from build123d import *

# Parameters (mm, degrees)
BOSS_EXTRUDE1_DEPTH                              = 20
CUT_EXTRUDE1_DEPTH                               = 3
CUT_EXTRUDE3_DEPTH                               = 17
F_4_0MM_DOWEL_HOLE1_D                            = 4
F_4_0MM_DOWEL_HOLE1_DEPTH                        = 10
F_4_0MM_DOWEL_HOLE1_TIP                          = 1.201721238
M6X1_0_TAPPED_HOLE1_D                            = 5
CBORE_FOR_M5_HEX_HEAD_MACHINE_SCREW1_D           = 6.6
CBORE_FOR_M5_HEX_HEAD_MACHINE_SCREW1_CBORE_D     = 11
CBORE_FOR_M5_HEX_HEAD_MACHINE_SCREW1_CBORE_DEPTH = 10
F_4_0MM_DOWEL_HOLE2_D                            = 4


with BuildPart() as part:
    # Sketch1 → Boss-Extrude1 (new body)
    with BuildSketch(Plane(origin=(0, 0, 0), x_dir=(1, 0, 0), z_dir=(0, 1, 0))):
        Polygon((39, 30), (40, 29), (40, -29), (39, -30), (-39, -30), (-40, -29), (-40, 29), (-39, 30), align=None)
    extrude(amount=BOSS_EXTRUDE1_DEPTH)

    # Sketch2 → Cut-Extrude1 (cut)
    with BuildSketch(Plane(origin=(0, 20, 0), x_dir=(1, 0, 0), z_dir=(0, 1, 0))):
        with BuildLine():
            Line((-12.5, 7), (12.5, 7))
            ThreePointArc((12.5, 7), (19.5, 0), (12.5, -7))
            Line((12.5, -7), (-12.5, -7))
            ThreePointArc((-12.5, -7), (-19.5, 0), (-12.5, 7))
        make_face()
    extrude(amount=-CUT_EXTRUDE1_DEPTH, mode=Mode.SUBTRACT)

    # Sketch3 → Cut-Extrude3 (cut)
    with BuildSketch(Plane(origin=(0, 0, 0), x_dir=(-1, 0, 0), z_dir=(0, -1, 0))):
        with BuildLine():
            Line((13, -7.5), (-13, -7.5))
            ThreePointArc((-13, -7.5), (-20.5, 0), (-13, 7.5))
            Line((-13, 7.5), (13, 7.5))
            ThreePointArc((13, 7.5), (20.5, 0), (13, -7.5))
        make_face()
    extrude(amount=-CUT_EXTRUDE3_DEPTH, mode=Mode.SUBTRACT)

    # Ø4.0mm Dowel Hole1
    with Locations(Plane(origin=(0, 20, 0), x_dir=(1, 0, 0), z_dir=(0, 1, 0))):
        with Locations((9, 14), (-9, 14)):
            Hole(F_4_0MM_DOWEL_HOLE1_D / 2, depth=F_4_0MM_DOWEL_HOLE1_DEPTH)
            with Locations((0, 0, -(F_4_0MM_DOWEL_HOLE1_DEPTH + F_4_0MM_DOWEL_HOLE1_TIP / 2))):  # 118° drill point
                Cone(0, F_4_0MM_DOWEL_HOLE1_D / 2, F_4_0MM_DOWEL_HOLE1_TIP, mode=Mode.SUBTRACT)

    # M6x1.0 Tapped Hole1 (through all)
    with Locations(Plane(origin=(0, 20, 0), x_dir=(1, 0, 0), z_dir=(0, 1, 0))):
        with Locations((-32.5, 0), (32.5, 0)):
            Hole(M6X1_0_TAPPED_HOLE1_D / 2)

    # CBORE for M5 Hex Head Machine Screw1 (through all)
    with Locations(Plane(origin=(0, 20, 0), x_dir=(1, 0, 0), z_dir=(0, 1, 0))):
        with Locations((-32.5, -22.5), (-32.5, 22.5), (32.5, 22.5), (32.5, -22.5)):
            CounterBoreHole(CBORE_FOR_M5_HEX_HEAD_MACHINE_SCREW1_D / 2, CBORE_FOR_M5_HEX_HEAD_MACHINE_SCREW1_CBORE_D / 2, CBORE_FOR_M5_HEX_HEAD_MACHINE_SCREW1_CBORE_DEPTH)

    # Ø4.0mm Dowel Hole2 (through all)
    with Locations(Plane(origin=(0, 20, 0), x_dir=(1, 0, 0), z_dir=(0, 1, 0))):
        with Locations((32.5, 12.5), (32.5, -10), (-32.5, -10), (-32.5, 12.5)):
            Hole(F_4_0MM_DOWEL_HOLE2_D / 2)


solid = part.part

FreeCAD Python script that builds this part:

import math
import FreeCAD as App
import Part
import Sketcher
from FreeCAD import Vector

doc = App.newDocument("Part")
body = doc.addObject("PartDesign::Body", "Body")

# Sketch on XZ plane
sketch1 = body.newObject("Sketcher::SketchObject", "Sketch")
sketch1.AttachmentSupport = (doc.getObject("XZ_Plane"), [""])
sketch1.MapMode = "FlatFace"
sketch1.addGeometry([
    Part.LineSegment(Vector(40, -29, 0), Vector(39, -30, 0)),  # 0
    Part.LineSegment(Vector(39, -30, 0), Vector(-39, -30, 0)),  # 1
    Part.LineSegment(Vector(-39, -30, 0), Vector(-40, -29, 0)),  # 2
    Part.LineSegment(Vector(-40, -29, 0), Vector(-40, 29, 0)),  # 3
    Part.LineSegment(Vector(-40, 29, 0), Vector(-39, 30, 0)),  # 4
    Part.LineSegment(Vector(-39, 30, 0), Vector(39, 30, 0)),  # 5
    Part.LineSegment(Vector(39, 30, 0), Vector(40, 29, 0)),  # 6
    Part.LineSegment(Vector(40, 29, 0), Vector(40, -29, 0)),  # 7
], False)
sketch1.addConstraint([
    Sketcher.Constraint("Coincident", 0, 2, 1, 1),
    Sketcher.Constraint("Coincident", 1, 2, 2, 1),
    Sketcher.Constraint("Coincident", 2, 2, 3, 1),
    Sketcher.Constraint("Coincident", 3, 2, 4, 1),
    Sketcher.Constraint("Coincident", 4, 2, 5, 1),
    Sketcher.Constraint("Coincident", 5, 2, 6, 1),
    Sketcher.Constraint("Coincident", 6, 2, 7, 1),
    Sketcher.Constraint("Coincident", 7, 2, 0, 1),
    Sketcher.Constraint("Horizontal", 1),
    Sketcher.Constraint("Vertical", 3),
    Sketcher.Constraint("Horizontal", 5),
    Sketcher.Constraint("Vertical", 7),
    Sketcher.Constraint("Symmetric", 0, 2, 4, 2, -1, 1),
    Sketcher.Constraint("Symmetric", 2, 2, 6, 2, -1, 1),
    Sketcher.Constraint("Perpendicular", 0, 2),
    Sketcher.Constraint("Perpendicular", 2, 4),
    Sketcher.Constraint("Perpendicular", 4, 6),
    Sketcher.Constraint("Horizontal", 3, 2, 6, 2),
    Sketcher.Constraint("Vertical", 1, 2, 4, 2),
    Sketcher.Constraint("DistanceX", 1, 2, 1, 1, 78.0),
    Sketcher.Constraint("DistanceY", 3, 1, 3, 2, 58.0),
    Sketcher.Constraint("DistanceY", 0, 2, -1, 1, 30.0),
])
pad1 = body.newObject("PartDesign::Pad", "Pad")
pad1.Profile = sketch1
pad1.Length = 20
pad1.Reversed = True

# Sketch on XZ plane
sketch2 = body.newObject("Sketcher::SketchObject", "Sketch001")
sketch2.AttachmentSupport = (doc.getObject("XZ_Plane"), [""])
sketch2.MapMode = "FlatFace"
sketch2.AttachmentOffset = App.Placement(Vector(0, 0, -20), App.Rotation())
sketch2.addGeometry([
    Part.LineSegment(Vector(12.5, -7, 0), Vector(-12.5, -7, 0)),
    Part.ArcOfCircle(Part.Circle(Vector(-12.5, 0, 0), Vector(0, 0, 1), 7), math.radians(90), math.radians(270)),
    Part.LineSegment(Vector(-12.5, 7, 0), Vector(12.5, 7, 0)),
    Part.ArcOfCircle(Part.Circle(Vector(12.5, 0, 0), Vector(0, 0, 1), 7), math.radians(-90), math.radians(90)),
], False)
sketch2.addConstraint([
    Sketcher.Constraint("Tangent", 0, 2, 1, 2),
    Sketcher.Constraint("Tangent", 1, 1, 2, 1),
    Sketcher.Constraint("Tangent", 2, 2, 3, 2),
    Sketcher.Constraint("Tangent", 3, 1, 0, 1),
    Sketcher.Constraint("Horizontal", 0),
    Sketcher.Constraint("Horizontal", 2),
    Sketcher.Constraint("Symmetric", 1, 3, 3, 3, -1, 1),
    Sketcher.Constraint("Radius", 1, 7.0),
    Sketcher.Constraint("DistanceX", 0, 2, 0, 1, 25.0),
])
pocket1 = body.newObject("PartDesign::Pocket", "Pocket")
pocket1.Profile = sketch2
pocket1.Length = 3
pocket1.Reversed = True

# Sketch on XZ plane
sketch3 = body.newObject("Sketcher::SketchObject", "Sketch002")
sketch3.AttachmentSupport = (doc.getObject("XZ_Plane"), [""])
sketch3.MapMode = "FlatFace"
sketch3.addGeometry([
    Part.LineSegment(Vector(13, 7.5, 0), Vector(-13, 7.5, 0)),
    Part.ArcOfCircle(Part.Circle(Vector(-13, 0, 0), Vector(0, 0, 1), 7.5), math.radians(90), math.radians(270)),
    Part.LineSegment(Vector(-13, -7.5, 0), Vector(13, -7.5, 0)),
    Part.ArcOfCircle(Part.Circle(Vector(13, 0, 0), Vector(0, 0, 1), 7.5), math.radians(-90), math.radians(90)),
], False)
sketch3.addConstraint([
    Sketcher.Constraint("Tangent", 0, 2, 1, 1),
    Sketcher.Constraint("Tangent", 1, 2, 2, 1),
    Sketcher.Constraint("Tangent", 2, 2, 3, 1),
    Sketcher.Constraint("Tangent", 3, 2, 0, 1),
    Sketcher.Constraint("Horizontal", 0),
    Sketcher.Constraint("Horizontal", 2),
    Sketcher.Constraint("Symmetric", 1, 3, 3, 3, -1, 1),
    Sketcher.Constraint("Radius", 1, 7.5),
    Sketcher.Constraint("DistanceX", 0, 2, 0, 1, 26.0),
])
pocket2 = body.newObject("PartDesign::Pocket", "Pocket001")
pocket2.Profile = sketch3
pocket2.Length = 17

# Sketch on XZ plane
sketch4 = body.newObject("Sketcher::SketchObject", "Sketch003")
sketch4.AttachmentSupport = (doc.getObject("XZ_Plane"), [""])
sketch4.MapMode = "FlatFace"
sketch4.AttachmentOffset = App.Placement(Vector(0, 0, -20), App.Rotation())
sketch4.addGeometry([
    Part.Circle(Vector(9, -14, 0), Vector(0, 0, 1), 2),
    Part.Circle(Vector(-9, -14, 0), Vector(0, 0, 1), 2),
], False)
sketch4.addConstraint([
    Sketcher.Constraint("Equal", 0, 1),
    Sketcher.Constraint("Symmetric", 0, 3, 1, 3, -2),
    Sketcher.Constraint("Diameter", 0, 4.0),
    Sketcher.Constraint("DistanceX", -1, 1, 0, 3, 9.0),
    Sketcher.Constraint("DistanceY", 0, 3, -1, 1, 14.0),
])
doc.recompute()
hole = body.newObject("PartDesign::Hole", "Hole")
hole.Profile = sketch4
hole.ThreadType = "None"
hole.Diameter = 4
hole.DepthType = "Dimension"
hole.Depth = 10
hole.DrillPoint = "Angled"
hole.DrillPointAngle = 118
hole.Reversed = True

# Sketch on XZ plane
sketch5 = body.newObject("Sketcher::SketchObject", "Sketch004")
sketch5.AttachmentSupport = (doc.getObject("XZ_Plane"), [""])
sketch5.MapMode = "FlatFace"
sketch5.AttachmentOffset = App.Placement(Vector(0, 0, -20), App.Rotation())
sketch5.addGeometry([
    Part.Circle(Vector(-32.5, 0, 0), Vector(0, 0, 1), 2.5),
    Part.Circle(Vector(32.5, 0, 0), Vector(0, 0, 1), 2.5),
], False)
sketch5.addConstraint([
    Sketcher.Constraint("Equal", 0, 1),
    Sketcher.Constraint("Symmetric", 0, 3, 1, 3, -1, 1),
    Sketcher.Constraint("PointOnObject", 0, 3, -1),
    Sketcher.Constraint("Diameter", 0, 5.0),
    Sketcher.Constraint("DistanceX", 0, 3, 1, 3, 65.0),
])
doc.recompute()
hole2 = body.newObject("PartDesign::Hole", "Hole001")
hole2.Profile = sketch5
hole2.ThreadType = "None"
hole2.Diameter = 5
hole2.DepthType = "ThroughAll"
hole2.Reversed = True

# Sketch on XZ plane
sketch6 = body.newObject("Sketcher::SketchObject", "Sketch005")
sketch6.AttachmentSupport = (doc.getObject("XZ_Plane"), [""])
sketch6.MapMode = "FlatFace"
sketch6.AttachmentOffset = App.Placement(Vector(0, 0, -20), App.Rotation())
sketch6.addGeometry([
    Part.Circle(Vector(-32.5, 22.5, 0), Vector(0, 0, 1), 3.3),
    Part.Circle(Vector(-32.5, -22.5, 0), Vector(0, 0, 1), 3.3),
    Part.Circle(Vector(32.5, -22.5, 0), Vector(0, 0, 1), 3.3),
    Part.Circle(Vector(32.5, 22.5, 0), Vector(0, 0, 1), 3.3),
], False)
sketch6.addConstraint([
    Sketcher.Constraint("Equal", 0, 1),
    Sketcher.Constraint("Equal", 1, 2),
    Sketcher.Constraint("Equal", 2, 3),
    Sketcher.Constraint("Symmetric", 0, 3, 2, 3, -1, 1),
    Sketcher.Constraint("Symmetric", 1, 3, 3, 3, -1, 1),
    Sketcher.Constraint("Symmetric", 1, 3, 2, 3, -2),
    Sketcher.Constraint("Diameter", 0, 6.6),
    Sketcher.Constraint("DistanceY", 1, 3, 0, 3, 45.0),
    Sketcher.Constraint("DistanceX", 1, 3, 2, 3, 65.0),
])
doc.recompute()
hole3 = body.newObject("PartDesign::Hole", "Hole002")
hole3.Profile = sketch6
hole3.ThreadType = "None"
hole3.Diameter = 6.6
hole3.DepthType = "ThroughAll"
hole3.HoleCutType = "Counterbore"
hole3.HoleCutDiameter = 11
hole3.HoleCutDepth = 10
hole3.Reversed = True

# Sketch on XZ plane
sketch7 = body.newObject("Sketcher::SketchObject", "Sketch006")
sketch7.AttachmentSupport = (doc.getObject("XZ_Plane"), [""])
sketch7.MapMode = "FlatFace"
sketch7.AttachmentOffset = App.Placement(Vector(0, 0, -20), App.Rotation())
sketch7.addGeometry([
    Part.Circle(Vector(32.5, -12.5, 0), Vector(0, 0, 1), 2),
    Part.Circle(Vector(32.5, 10, 0), Vector(0, 0, 1), 2),
    Part.Circle(Vector(-32.5, 10, 0), Vector(0, 0, 1), 2),
    Part.Circle(Vector(-32.5, -12.5, 0), Vector(0, 0, 1), 2),
], False)
sketch7.addConstraint([
    Sketcher.Constraint("Equal", 0, 1),
    Sketcher.Constraint("Equal", 1, 2),
    Sketcher.Constraint("Equal", 2, 3),
    Sketcher.Constraint("Symmetric", 1, 3, 2, 3, -2),
    Sketcher.Constraint("Symmetric", 0, 3, 3, 3, -2),
    Sketcher.Constraint("Vertical", 0, 3, 1, 3),
    Sketcher.Constraint("Diameter", 0, 4.0),
    Sketcher.Constraint("DistanceY", -1, 1, 1, 3, 10.0),
    Sketcher.Constraint("DistanceX", 2, 3, 1, 3, 65.0),
    Sketcher.Constraint("DistanceY", 0, 3, -1, 1, 12.5),
])
doc.recompute()
hole4 = body.newObject("PartDesign::Hole", "Hole003")
hole4.Profile = sketch7
hole4.ThreadType = "None"
hole4.Diameter = 4
hole4.DepthType = "ThroughAll"
hole4.Reversed = True

doc.recompute()
